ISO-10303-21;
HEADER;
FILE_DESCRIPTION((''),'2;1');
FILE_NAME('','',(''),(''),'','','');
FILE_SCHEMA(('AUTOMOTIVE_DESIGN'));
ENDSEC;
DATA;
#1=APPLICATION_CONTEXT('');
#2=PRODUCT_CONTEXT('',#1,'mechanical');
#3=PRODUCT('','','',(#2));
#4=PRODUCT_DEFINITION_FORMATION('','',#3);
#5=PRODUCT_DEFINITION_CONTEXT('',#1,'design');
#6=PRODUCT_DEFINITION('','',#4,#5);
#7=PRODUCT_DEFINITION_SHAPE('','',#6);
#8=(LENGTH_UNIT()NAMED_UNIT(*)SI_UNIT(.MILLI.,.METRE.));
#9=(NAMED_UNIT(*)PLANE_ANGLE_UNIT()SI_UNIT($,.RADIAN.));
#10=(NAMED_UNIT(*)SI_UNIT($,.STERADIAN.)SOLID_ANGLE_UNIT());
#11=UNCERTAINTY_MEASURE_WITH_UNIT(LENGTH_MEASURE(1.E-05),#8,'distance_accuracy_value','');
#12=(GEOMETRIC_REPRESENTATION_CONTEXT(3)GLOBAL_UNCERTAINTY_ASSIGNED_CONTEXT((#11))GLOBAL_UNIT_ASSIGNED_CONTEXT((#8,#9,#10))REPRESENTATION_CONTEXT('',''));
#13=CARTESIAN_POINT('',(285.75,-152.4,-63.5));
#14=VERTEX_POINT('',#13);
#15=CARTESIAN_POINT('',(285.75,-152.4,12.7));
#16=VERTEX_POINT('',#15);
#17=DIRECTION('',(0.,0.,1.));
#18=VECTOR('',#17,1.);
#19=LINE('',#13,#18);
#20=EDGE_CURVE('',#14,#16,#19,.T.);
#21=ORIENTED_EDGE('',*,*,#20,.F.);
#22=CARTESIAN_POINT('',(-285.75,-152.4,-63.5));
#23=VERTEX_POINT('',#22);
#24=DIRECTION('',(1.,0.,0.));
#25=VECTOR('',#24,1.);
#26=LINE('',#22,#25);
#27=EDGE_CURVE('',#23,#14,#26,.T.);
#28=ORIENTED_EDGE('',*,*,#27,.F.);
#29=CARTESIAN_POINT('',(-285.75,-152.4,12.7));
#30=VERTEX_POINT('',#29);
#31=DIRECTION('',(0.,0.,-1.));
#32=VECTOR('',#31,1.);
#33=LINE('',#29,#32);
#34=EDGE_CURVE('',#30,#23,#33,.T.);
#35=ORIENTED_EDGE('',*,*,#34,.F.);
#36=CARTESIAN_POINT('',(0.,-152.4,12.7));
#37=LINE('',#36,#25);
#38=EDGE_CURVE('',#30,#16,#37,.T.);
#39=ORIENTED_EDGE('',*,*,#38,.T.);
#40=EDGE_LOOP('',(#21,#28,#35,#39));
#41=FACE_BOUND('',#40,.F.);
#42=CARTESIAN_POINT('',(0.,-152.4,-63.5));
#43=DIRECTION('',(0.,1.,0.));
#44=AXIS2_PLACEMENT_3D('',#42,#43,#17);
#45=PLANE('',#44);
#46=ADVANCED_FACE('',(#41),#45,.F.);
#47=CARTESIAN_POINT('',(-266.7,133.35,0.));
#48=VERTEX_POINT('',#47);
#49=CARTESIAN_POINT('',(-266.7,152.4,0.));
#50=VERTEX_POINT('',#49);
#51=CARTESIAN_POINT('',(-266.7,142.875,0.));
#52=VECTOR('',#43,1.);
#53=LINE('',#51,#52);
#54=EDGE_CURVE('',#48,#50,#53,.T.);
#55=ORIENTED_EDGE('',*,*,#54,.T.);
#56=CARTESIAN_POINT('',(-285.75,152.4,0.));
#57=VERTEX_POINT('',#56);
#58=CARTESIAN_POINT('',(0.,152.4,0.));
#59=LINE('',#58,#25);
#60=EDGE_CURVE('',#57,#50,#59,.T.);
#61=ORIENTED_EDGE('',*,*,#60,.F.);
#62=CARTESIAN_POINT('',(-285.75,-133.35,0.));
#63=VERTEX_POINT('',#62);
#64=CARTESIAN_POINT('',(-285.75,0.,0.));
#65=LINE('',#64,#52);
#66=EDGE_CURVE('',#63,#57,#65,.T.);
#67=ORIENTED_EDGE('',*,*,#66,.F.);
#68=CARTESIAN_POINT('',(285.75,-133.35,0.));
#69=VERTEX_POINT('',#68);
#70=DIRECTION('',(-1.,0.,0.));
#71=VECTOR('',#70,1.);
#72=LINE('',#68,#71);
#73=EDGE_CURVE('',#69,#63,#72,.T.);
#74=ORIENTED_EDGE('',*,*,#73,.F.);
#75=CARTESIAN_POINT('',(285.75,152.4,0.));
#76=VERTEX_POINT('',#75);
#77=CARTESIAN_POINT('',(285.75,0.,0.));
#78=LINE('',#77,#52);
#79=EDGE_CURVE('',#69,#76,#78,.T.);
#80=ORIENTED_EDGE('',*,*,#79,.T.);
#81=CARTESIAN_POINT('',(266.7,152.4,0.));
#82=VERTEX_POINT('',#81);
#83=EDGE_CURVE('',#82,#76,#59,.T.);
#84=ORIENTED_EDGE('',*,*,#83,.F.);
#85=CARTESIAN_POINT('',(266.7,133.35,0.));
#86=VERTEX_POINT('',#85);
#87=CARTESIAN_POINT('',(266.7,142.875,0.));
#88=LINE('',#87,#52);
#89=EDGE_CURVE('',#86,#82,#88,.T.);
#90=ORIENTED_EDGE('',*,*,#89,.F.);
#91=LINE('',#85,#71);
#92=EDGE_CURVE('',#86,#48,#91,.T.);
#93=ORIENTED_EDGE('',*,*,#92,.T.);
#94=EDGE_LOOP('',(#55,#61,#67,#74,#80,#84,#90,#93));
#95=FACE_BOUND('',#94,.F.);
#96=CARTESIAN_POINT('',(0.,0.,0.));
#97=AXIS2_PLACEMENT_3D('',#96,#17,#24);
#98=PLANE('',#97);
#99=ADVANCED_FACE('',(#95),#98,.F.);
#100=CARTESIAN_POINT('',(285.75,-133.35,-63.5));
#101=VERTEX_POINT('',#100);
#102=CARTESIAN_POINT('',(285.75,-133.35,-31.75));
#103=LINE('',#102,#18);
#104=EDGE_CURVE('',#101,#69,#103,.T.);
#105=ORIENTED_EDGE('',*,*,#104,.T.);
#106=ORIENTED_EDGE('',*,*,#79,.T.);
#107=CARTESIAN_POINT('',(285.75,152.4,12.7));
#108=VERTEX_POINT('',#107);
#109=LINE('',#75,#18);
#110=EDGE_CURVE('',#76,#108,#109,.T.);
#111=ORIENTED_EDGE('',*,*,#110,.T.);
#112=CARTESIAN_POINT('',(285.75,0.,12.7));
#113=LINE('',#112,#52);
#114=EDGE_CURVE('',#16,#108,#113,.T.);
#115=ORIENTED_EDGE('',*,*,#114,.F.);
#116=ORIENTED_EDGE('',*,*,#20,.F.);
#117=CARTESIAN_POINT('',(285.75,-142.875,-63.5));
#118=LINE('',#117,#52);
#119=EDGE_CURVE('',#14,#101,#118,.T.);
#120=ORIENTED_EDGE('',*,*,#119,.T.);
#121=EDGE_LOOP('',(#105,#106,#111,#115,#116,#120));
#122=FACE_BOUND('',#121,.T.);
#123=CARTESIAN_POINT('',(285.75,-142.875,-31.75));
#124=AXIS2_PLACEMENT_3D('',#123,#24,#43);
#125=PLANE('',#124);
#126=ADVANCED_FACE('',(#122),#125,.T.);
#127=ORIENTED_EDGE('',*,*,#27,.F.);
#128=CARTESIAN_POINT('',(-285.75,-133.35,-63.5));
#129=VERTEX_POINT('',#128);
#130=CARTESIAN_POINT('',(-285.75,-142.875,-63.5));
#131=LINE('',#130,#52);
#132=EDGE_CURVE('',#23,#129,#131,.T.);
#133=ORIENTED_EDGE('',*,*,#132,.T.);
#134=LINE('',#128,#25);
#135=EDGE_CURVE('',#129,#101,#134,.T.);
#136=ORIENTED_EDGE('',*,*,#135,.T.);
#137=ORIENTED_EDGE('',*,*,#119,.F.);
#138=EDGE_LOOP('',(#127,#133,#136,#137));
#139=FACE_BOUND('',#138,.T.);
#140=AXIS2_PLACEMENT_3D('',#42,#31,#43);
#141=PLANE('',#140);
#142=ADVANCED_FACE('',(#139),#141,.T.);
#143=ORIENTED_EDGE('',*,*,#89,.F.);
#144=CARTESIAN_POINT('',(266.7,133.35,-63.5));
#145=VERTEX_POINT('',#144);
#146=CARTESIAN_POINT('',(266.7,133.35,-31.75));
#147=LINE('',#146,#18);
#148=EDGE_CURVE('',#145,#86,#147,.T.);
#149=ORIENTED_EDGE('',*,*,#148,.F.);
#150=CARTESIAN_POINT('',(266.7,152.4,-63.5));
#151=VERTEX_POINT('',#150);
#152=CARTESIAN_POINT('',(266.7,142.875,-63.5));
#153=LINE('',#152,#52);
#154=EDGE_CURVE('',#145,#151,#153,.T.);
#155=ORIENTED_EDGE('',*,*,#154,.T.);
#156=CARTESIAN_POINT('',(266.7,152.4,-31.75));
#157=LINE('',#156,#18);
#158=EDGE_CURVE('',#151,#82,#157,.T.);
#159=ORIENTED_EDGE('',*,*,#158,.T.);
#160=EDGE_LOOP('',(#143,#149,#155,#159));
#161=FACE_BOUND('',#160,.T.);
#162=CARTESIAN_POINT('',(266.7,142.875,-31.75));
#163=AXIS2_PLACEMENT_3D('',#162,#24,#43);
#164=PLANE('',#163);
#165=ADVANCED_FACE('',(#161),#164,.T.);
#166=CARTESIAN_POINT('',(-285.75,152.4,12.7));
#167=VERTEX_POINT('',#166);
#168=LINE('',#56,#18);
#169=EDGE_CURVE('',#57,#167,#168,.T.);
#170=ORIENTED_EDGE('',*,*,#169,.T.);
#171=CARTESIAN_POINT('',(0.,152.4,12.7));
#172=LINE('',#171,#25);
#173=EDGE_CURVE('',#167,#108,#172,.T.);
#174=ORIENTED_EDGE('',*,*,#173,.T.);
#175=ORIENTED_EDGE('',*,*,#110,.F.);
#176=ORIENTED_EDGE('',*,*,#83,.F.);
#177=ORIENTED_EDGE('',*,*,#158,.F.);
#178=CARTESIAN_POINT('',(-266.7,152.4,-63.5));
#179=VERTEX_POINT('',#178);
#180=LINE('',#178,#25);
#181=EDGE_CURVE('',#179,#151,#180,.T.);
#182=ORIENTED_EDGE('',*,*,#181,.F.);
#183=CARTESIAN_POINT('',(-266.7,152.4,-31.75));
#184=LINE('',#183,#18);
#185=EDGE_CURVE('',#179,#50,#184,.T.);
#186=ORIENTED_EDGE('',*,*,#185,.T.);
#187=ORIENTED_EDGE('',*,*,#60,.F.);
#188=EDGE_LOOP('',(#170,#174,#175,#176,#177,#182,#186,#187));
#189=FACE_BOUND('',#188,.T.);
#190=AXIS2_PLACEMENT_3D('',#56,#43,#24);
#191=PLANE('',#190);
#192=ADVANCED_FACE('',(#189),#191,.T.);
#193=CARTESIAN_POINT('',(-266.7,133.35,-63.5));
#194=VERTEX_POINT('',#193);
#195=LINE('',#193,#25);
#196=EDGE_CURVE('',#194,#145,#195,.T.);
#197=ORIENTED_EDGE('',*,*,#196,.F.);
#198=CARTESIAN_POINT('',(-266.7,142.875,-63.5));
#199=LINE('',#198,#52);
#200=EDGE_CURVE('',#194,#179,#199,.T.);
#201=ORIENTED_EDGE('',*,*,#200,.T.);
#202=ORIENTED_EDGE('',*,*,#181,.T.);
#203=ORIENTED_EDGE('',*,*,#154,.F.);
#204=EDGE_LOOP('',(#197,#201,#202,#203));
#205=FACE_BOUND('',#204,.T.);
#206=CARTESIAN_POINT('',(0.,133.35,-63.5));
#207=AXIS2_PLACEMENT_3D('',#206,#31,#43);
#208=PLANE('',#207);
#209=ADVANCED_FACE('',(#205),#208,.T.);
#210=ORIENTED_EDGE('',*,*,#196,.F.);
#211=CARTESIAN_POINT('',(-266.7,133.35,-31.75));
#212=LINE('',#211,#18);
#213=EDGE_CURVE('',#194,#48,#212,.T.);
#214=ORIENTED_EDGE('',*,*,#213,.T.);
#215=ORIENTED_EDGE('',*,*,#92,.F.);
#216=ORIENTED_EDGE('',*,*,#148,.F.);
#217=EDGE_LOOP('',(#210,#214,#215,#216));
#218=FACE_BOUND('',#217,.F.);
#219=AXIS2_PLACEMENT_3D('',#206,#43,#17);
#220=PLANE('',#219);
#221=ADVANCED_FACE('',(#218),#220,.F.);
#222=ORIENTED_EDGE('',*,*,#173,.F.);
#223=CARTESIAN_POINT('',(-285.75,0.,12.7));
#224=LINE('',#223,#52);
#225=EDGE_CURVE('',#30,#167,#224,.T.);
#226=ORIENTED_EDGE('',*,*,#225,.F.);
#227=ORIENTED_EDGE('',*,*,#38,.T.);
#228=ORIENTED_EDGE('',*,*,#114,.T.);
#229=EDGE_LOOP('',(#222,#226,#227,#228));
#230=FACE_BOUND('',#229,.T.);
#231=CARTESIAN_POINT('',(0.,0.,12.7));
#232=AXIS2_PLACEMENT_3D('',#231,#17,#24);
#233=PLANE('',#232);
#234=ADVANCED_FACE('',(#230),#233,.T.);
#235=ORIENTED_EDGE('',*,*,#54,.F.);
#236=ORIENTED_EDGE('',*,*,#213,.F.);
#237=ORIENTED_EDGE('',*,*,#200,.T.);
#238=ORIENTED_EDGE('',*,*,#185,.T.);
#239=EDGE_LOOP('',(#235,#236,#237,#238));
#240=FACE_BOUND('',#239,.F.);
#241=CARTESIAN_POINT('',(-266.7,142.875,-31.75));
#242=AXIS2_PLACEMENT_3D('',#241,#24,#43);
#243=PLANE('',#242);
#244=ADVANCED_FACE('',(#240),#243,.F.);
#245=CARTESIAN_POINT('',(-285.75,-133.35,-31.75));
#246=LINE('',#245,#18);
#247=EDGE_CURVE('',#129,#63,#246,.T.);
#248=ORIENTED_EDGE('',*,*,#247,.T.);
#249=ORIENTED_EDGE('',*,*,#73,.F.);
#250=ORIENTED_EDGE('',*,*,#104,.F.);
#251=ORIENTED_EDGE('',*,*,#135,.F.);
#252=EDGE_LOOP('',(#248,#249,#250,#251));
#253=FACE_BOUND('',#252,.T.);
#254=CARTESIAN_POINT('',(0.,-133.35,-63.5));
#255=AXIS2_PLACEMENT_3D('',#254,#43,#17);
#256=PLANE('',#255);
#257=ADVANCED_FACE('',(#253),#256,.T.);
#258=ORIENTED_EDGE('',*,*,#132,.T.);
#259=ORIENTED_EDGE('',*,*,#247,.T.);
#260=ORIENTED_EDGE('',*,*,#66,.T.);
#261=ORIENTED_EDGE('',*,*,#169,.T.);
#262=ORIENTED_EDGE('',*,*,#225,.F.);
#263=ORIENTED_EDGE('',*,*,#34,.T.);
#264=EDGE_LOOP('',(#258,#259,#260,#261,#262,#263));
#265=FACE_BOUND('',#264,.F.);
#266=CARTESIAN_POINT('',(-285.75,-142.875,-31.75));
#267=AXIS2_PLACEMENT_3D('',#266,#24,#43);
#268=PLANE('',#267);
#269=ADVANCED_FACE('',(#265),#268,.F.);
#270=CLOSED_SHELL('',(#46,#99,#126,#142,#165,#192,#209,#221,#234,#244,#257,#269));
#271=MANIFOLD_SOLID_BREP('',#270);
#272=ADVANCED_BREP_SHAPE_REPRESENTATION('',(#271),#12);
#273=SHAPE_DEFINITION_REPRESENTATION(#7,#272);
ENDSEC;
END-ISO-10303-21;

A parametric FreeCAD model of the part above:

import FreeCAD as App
import Part
import Sketcher

V = App.Vector
Q = App.Units.Quantity


def add_polygon(sketch, points):
    """Adds a closed chain of lines whose ends are joined by coincident constraints."""
    first, n = sketch.GeometryCount, len(points)
    for a, b in zip(points, points[1:] + points[:1]):
        sketch.addGeometry(Part.LineSegment(App.Vector(*a, 0), App.Vector(*b, 0)), False)
    for i in range(n):
        sketch.addConstraint(Sketcher.Constraint("Coincident", first + i, 2, first + (i + 1) % n, 1))

doc = App.newDocument("Part")
body = doc.addObject("PartDesign::Body", "Body")

# Sketch on XY plane
sketch1 = body.newObject("Sketcher::SketchObject", "Sketch")
sketch1.AttachmentSupport = (doc.getObject("XY_Plane"), [""])
sketch1.MapMode = "FlatFace"
add_polygon(sketch1, [(-286, 152), (-286, -152), (286, -152), (286, 152)])  # lines 0-3
sketch1.addConstraint([
    Sketcher.Constraint("Vertical", 0),
    Sketcher.Constraint("Horizontal", 1),
    Sketcher.Constraint("Vertical", 2),
    Sketcher.Constraint("Horizontal", 3),
    Sketcher.Constraint("Symmetric", 0, 2, 2, 2, -1, 1),
    Sketcher.Constraint("DistanceY", 0, 2, 0, 1, Q("12 in")),
    Sketcher.Constraint("DistanceX", 1, 1, 1, 2, Q("22.5 in")),
])
pad1 = body.newObject("PartDesign::Pad", "Pad")
pad1.Profile = sketch1
pad1.Length = Q("0.5 in")

# Sketch on YZ plane
sketch2 = body.newObject("Sketcher::SketchObject", "Sketch001")
sketch2.AttachmentSupport = (doc.getObject("YZ_Plane"), [""])
sketch2.MapMode = "FlatFace"
add_polygon(sketch2, [(-152, 0), (-152, -64), (-133, -64), (-133, 0)])  # lines 0-3
sketch2.addConstraint([
    Sketcher.Constraint("Vertical", 0),
    Sketcher.Constraint("Horizontal", 1),
    Sketcher.Constraint("Vertical", 2),
    Sketcher.Constraint("Horizontal", 3),
    Sketcher.Constraint("PointOnObject", 2, 2, -1),
    Sketcher.Constraint("DistanceY", 0, 2, 0, 1, Q("2.5 in")),
    Sketcher.Constraint("DistanceX", 0, 2, -1, 1, Q("6 in")),
    Sketcher.Constraint("DistanceX", 1, 1, 1, 2, Q("0.75 in")),
])
pad2 = body.newObject("PartDesign::Pad", "Pad001")
pad2.Profile = sketch2
pad2.Length = Q("22.5 in")
pad2.Midplane = True

# Sketch on YZ plane
sketch3 = body.newObject("Sketcher::SketchObject", "Sketch002")
sketch3.AttachmentSupport = (doc.getObject("YZ_Plane"), [""])
sketch3.MapMode = "FlatFace"
add_polygon(sketch3, [(133, 0), (133, -64), (152, -64), (152, 0)])  # lines 0-3
sketch3.addConstraint([
    Sketcher.Constraint("Vertical", 0),
    Sketcher.Constraint("Horizontal", 1),
    Sketcher.Constraint("Vertical", 2),
    Sketcher.Constraint("Horizontal", 3),
    Sketcher.Constraint("PointOnObject", 2, 2, -1),
    Sketcher.Constraint("DistanceY", 0, 2, 0, 1, Q("2.5 in")),
    Sketcher.Constraint("DistanceX", -1, 1, 1, 2, Q("6 in")),
    Sketcher.Constraint("DistanceX", 1, 1, 1, 2, Q("0.75 in")),
])
pad3 = body.newObject("PartDesign::Pad", "Pad002")
pad3.Profile = sketch3
pad3.Length = Q("21 in")
pad3.Midplane = True

doc.recompute()
